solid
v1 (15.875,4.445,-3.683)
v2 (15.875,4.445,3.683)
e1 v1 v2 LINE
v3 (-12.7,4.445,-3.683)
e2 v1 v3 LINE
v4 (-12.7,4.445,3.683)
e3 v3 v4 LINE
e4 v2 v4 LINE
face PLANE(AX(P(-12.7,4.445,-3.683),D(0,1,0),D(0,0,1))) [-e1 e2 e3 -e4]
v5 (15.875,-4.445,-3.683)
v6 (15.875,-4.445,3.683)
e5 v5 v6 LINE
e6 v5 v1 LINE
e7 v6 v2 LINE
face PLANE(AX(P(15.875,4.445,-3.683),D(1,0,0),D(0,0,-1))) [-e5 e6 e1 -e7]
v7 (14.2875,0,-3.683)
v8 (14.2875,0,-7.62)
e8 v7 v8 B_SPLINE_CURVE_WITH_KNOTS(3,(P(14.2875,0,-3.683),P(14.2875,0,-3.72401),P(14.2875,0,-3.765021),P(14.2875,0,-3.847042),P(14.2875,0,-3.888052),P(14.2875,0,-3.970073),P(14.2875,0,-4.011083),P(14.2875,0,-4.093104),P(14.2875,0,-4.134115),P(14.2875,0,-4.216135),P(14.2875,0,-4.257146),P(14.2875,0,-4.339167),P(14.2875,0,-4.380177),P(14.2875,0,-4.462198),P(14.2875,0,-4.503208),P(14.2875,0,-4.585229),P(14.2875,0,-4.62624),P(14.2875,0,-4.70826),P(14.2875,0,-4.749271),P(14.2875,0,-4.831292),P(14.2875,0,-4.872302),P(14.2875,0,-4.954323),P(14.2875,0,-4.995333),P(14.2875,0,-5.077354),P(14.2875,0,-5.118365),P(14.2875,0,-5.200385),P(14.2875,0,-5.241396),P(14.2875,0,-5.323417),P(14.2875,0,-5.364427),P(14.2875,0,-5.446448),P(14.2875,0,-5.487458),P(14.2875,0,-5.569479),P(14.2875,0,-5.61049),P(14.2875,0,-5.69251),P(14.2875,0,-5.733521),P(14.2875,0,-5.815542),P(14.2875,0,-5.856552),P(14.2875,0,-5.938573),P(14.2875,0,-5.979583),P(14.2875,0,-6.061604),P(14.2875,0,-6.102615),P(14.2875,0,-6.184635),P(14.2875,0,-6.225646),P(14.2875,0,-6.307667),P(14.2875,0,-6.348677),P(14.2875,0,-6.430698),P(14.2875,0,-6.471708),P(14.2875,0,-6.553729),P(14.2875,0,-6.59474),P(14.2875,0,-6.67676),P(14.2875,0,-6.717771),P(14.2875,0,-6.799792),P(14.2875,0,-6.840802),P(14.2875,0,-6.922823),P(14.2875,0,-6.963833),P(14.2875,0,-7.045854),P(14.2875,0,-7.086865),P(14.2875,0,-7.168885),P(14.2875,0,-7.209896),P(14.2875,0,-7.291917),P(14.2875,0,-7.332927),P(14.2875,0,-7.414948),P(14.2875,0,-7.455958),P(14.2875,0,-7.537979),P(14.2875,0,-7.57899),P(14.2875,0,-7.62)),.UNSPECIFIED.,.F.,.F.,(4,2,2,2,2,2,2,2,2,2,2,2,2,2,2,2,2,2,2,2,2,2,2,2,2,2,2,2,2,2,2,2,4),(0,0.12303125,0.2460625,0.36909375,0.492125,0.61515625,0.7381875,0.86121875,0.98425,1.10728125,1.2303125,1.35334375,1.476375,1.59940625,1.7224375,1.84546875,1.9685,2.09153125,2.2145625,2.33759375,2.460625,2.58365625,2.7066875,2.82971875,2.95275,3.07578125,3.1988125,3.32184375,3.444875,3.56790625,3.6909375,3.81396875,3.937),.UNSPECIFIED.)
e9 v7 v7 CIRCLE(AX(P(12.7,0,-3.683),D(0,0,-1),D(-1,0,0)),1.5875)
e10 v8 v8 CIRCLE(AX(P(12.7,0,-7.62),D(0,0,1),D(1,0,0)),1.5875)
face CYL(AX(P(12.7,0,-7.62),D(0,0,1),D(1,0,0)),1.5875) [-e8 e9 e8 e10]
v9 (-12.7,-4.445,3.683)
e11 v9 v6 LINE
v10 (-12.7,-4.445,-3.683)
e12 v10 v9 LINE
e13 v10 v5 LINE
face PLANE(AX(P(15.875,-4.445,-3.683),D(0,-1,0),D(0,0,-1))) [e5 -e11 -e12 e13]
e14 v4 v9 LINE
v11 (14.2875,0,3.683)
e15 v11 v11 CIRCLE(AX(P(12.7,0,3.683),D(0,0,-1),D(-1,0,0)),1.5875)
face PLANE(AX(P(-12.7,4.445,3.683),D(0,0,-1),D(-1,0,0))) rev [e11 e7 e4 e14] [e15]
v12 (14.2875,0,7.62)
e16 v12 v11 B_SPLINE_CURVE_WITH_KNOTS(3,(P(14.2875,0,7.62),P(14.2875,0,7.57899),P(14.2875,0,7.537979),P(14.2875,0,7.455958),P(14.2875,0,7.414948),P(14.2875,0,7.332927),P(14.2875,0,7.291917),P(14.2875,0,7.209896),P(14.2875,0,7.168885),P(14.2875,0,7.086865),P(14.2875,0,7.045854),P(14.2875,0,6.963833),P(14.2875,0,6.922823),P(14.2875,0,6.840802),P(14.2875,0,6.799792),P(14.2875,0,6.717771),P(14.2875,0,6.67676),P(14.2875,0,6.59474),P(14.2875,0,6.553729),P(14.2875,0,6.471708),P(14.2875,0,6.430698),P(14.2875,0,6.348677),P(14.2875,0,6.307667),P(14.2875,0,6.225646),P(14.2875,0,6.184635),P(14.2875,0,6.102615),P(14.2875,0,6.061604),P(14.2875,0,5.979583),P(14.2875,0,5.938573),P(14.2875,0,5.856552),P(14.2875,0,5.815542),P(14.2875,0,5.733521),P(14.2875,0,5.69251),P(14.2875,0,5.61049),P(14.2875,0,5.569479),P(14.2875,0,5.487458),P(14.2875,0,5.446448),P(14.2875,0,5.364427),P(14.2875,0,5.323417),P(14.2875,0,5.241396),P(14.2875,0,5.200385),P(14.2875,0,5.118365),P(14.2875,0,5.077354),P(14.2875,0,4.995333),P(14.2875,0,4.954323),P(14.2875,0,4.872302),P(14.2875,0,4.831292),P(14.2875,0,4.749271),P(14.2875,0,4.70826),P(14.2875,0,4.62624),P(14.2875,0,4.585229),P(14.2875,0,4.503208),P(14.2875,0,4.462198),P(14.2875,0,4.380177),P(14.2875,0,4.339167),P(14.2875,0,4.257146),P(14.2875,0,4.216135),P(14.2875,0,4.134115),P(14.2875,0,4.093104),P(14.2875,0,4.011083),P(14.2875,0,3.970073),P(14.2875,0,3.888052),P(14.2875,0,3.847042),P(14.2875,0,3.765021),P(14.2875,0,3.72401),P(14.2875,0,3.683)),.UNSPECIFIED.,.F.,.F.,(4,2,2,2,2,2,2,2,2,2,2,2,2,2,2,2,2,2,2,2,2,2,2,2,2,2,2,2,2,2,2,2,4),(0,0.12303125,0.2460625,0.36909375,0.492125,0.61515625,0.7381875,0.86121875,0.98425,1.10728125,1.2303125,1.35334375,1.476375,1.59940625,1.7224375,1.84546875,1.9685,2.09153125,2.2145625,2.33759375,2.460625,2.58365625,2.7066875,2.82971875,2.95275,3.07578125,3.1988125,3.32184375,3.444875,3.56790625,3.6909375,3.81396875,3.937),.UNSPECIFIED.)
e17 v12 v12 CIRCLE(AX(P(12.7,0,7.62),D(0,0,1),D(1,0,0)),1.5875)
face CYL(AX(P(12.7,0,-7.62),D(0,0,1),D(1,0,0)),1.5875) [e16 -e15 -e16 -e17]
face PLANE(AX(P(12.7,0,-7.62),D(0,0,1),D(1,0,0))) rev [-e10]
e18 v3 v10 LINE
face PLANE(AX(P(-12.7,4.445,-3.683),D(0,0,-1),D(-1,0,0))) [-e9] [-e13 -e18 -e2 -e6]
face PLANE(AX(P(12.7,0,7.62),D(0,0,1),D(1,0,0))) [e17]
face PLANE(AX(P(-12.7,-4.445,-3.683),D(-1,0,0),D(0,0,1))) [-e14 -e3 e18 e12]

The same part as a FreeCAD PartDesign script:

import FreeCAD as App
import Part
import Sketcher

V = App.Vector
Q = App.Units.Quantity


def add_polygon(sketch, points):
    """Adds a closed chain of lines whose ends are joined by coincident constraints."""
    first, n = sketch.GeometryCount, len(points)
    for a, b in zip(points, points[1:] + points[:1]):
        sketch.addGeometry(Part.LineSegment(App.Vector(*a, 0), App.Vector(*b, 0)), False)
    for i in range(n):
        sketch.addConstraint(Sketcher.Constraint("Coincident", first + i, 2, first + (i + 1) % n, 1))

doc = App.newDocument("Part")
body = doc.addObject("PartDesign::Body", "Body")

# Sketch on XY plane
sketch1 = doc.addObject("Sketcher::SketchObject", "Sketch")
body.addObject(sketch1)
sketch1.AttachmentSupport = (doc.XY_Plane, [""])
sketch1.MapMode = "FlatFace"
add_polygon(sketch1, [(16, 4), (-13, 4), (-13, -4), (16, -4)])  # lines 0-3
sketch1.addConstraint(Sketcher.Constraint("Horizontal", 0))
sketch1.addConstraint(Sketcher.Constraint("Vertical", 1))
sketch1.addConstraint(Sketcher.Constraint("Horizontal", 2))
sketch1.addConstraint(Sketcher.Constraint("Vertical", 3))
sketch1.addConstraint(Sketcher.Constraint("DistanceY", 1, 2, 1, 1, Q("0.35 in")))
sketch1.addConstraint(Sketcher.Constraint("DistanceX", 0, 2, -1, 1, Q("0.5 in")))
sketch1.addConstraint(Sketcher.Constraint("DistanceX", 0, 2, 0, 1, Q("1.125 in")))
sketch1.addConstraint(Sketcher.Constraint("DistanceY", -1, 1, 0, 2, Q("0.175 in")))
pad1 = doc.addObject("PartDesign::Pad", "Pad")
body.addObject(pad1)
pad1.Profile = sketch1
pad1.Type = "TwoLengths"
pad1.Length = Q("0.145 in")
pad1.Length2 = Q("0.145 in")

# Sketch on XY plane
sketch2 = doc.addObject("Sketcher::SketchObject", "Sketch001")
body.addObject(sketch2)
sketch2.AttachmentSupport = (doc.XY_Plane, [""])
sketch2.MapMode = "FlatFace"
sketch2.addGeometry(Part.Circle(V(12.7, 0, 0), V(0, 0, 1), 1.6), False)
sketch2.addConstraint(Sketcher.Constraint("PointOnObject", 0, 3, -1))
sketch2.addConstraint(Sketcher.Constraint("Diameter", 0, Q("0.125 in")))
sketch2.addConstraint(Sketcher.Constraint("DistanceX", -1, 1, 0, 3, Q("0.5 in")))
pad2 = doc.addObject("PartDesign::Pad", "Pad001")
body.addObject(pad2)
pad2.Profile = sketch2
pad2.Type = "TwoLengths"
pad2.Length = Q("0.3 in")
pad2.Length2 = Q("0.3 in")

doc.recompute()
